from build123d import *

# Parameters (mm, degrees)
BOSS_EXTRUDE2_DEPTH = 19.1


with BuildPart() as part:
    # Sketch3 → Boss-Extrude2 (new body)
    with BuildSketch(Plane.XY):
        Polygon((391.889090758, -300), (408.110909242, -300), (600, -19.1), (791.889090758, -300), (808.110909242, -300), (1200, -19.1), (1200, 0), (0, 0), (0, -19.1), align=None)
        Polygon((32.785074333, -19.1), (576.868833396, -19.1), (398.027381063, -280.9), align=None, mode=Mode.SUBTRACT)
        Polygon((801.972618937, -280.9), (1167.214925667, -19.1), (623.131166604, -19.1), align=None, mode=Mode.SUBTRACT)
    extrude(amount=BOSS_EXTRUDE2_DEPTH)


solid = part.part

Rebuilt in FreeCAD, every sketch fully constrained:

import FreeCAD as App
import Part
import Sketcher
Q = App.Units.Quantity


def add_polygon(sketch, points):
    """Adds a closed chain of lines whose ends are joined by coincident constraints."""
    first, n = sketch.GeometryCount, len(points)
    for a, b in zip(points, points[1:] + points[:1]):
        sketch.addGeometry(Part.LineSegment(App.Vector(*a, 0), App.Vector(*b, 0)), False)
    for i in range(n):
        sketch.addConstraint(Sketcher.Constraint("Coincident", first + i, 2, first + (i + 1) % n, 1))

doc = App.newDocument("Part")
body = doc.addObject("PartDesign::Body", "Body")

# Sketch on XY plane
sketch1 = doc.addObject("Sketcher::SketchObject", "Sketch")
body.addObject(sketch1)
sketch1.AttachmentSupport = (doc.XY_Plane, [""])
sketch1.MapMode = "FlatFace"
add_polygon(sketch1, [(392, -300), (408, -300), (600, -19), (792, -300), (808, -300), (1200, -19), (1200, 0), (0, 0), (0, -19)])  # lines 0-8
add_polygon(sketch1, [(398, -281), (33, -19), (577, -19)])  # lines 9-11
add_polygon(sketch1, [(1167, -19), (802, -281), (623, -19)])  # lines 12-14
sketch1.addConstraint(Sketcher.Constraint("Horizontal", 0))
sketch1.addConstraint(Sketcher.Constraint("Horizontal", 3))
sketch1.addConstraint(Sketcher.Constraint("Vertical", 5))
sketch1.addConstraint(Sketcher.Constraint("Horizontal", 6))
sketch1.addConstraint(Sketcher.Constraint("Vertical", 7))
sketch1.addConstraint(Sketcher.Constraint("Horizontal", 10))
sketch1.addConstraint(Sketcher.Constraint("Horizontal", 14))
sketch1.addConstraint(Sketcher.Constraint("Coincident", 6, 2, -1, 1))
sketch1.addConstraint(Sketcher.Constraint("Parallel", 8, 9))
sketch1.addConstraint(Sketcher.Constraint("Parallel", 1, 11))
sketch1.addConstraint(Sketcher.Constraint("Parallel", 4, 12))
sketch1.addConstraint(Sketcher.Constraint("Parallel", 2, 13))
sketch1.addConstraint(Sketcher.Constraint("Horizontal", 0, 2, 2, 2))
sketch1.addConstraint(Sketcher.Constraint("Horizontal", 1, 2, 4, 2))
sketch1.addConstraint(Sketcher.Constraint("Horizontal", 4, 2, 7, 2))
sketch1.addConstraint(Sketcher.Constraint("Horizontal", 7, 2, 9, 2))
sketch1.addConstraint(Sketcher.Constraint("Horizontal", 11, 2, 12, 2))
sketch1.addConstraint(Sketcher.Constraint("Horizontal", 10, 2, 13, 2))
sketch1.addConstraint(Sketcher.Constraint("Equal", 0, 3))
sketch1.addConstraint(Sketcher.Constraint("Equal", 10, 14))
sketch1.addConstraint(Sketcher.Constraint("Equal", 1, 2))
sketch1.addConstraint(Sketcher.Constraint("DistanceX", 6, 2, 6, 1, Q("1200 mm")))
sketch1.addConstraint(Sketcher.Constraint("DistanceY", 5, 1, 5, 2, Q("19.1 mm")))
sketch1.addConstraint(Sketcher.Constraint("DistanceY", 0, 2, -1, 1, Q("300 mm")))
sketch1.addConstraint(Sketcher.Constraint("DistanceX", 0, 2, 3, 2, Q("400 mm")))
sketch1.addConstraint(Sketcher.Constraint("DistanceY", 11, 2, -1, 1, Q("280.9 mm")))
sketch1.addConstraint(Sketcher.Constraint("DistanceX", 0, 1, 0, 2, Q("16.221818 mm")))
sketch1.addConstraint(Sketcher.Constraint("DistanceX", -1, 1, 11, 2, Q("398.027381 mm")))
sketch1.addConstraint(Sketcher.Constraint("DistanceX", -1, 1, 12, 2, Q("801.972619 mm")))
pad1 = doc.addObject("PartDesign::Pad", "Pad")
body.addObject(pad1)
pad1.Profile = sketch1
pad1.Length = 19.1

doc.recompute()
